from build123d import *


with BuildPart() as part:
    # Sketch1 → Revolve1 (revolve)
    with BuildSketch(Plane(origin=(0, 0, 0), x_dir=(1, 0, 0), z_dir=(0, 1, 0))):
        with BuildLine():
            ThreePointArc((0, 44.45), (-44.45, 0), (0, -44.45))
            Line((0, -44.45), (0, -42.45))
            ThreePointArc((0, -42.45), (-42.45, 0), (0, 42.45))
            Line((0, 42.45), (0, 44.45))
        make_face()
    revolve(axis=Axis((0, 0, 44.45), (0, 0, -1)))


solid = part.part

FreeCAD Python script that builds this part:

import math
import FreeCAD as App
import Part
import Sketcher

V = App.Vector
Q = App.Units.Quantity

doc = App.newDocument("Part")
body = doc.addObject("PartDesign::Body", "Body")

# Sketch on XZ plane
sketch1 = body.newObject("Sketcher::SketchObject", "Sketch")
sketch1.AttachmentSupport = (doc.getObject("XZ_Plane"), [""])
sketch1.MapMode = "FlatFace"
sketch1.addGeometry([
    Part.ArcOfCircle(Part.Circle(V(0, 0, 0), V(0, 0, 1), 44.45), math.radians(90), math.radians(270)),
    Part.LineSegment(V(0, 44.45, 0), V(0, 42.45, 0)),
    Part.ArcOfCircle(Part.Circle(V(0, 0, 0), V(0, 0, 1), 42.45), math.radians(90), math.radians(270)),
    Part.LineSegment(V(0, -42.45, 0), V(0, -44.45, 0)),
], False)
sketch1.addConstraint([
    Sketcher.Constraint("Coincident", 0, 1, 1, 1),
    Sketcher.Constraint("Coincident", 1, 2, 2, 1),
    Sketcher.Constraint("Coincident", 2, 2, 3, 1),
    Sketcher.Constraint("Coincident", 3, 2, 0, 2),
    Sketcher.Constraint("Vertical", 1),
    Sketcher.Constraint("Vertical", 3),
    Sketcher.Constraint("Coincident", 0, 3, -1, 1),
    Sketcher.Constraint("Coincident", 2, 3, -1, 1),
    Sketcher.Constraint("PointOnObject", 0, 1, -2),
    Sketcher.Constraint("PointOnObject", 2, 2, -2),
    Sketcher.Constraint("DistanceY", 1, 2, 1, 1, Q("2 mm")),
    Sketcher.Constraint("Radius", 0, Q("44.45 mm")),
])
revolution = body.newObject("PartDesign::Revolution", "Revolution")
revolution.Profile = sketch1
revolution.ReferenceAxis = (sketch1, ["V_Axis"])
revolution.Angle = 360

doc.recompute()
